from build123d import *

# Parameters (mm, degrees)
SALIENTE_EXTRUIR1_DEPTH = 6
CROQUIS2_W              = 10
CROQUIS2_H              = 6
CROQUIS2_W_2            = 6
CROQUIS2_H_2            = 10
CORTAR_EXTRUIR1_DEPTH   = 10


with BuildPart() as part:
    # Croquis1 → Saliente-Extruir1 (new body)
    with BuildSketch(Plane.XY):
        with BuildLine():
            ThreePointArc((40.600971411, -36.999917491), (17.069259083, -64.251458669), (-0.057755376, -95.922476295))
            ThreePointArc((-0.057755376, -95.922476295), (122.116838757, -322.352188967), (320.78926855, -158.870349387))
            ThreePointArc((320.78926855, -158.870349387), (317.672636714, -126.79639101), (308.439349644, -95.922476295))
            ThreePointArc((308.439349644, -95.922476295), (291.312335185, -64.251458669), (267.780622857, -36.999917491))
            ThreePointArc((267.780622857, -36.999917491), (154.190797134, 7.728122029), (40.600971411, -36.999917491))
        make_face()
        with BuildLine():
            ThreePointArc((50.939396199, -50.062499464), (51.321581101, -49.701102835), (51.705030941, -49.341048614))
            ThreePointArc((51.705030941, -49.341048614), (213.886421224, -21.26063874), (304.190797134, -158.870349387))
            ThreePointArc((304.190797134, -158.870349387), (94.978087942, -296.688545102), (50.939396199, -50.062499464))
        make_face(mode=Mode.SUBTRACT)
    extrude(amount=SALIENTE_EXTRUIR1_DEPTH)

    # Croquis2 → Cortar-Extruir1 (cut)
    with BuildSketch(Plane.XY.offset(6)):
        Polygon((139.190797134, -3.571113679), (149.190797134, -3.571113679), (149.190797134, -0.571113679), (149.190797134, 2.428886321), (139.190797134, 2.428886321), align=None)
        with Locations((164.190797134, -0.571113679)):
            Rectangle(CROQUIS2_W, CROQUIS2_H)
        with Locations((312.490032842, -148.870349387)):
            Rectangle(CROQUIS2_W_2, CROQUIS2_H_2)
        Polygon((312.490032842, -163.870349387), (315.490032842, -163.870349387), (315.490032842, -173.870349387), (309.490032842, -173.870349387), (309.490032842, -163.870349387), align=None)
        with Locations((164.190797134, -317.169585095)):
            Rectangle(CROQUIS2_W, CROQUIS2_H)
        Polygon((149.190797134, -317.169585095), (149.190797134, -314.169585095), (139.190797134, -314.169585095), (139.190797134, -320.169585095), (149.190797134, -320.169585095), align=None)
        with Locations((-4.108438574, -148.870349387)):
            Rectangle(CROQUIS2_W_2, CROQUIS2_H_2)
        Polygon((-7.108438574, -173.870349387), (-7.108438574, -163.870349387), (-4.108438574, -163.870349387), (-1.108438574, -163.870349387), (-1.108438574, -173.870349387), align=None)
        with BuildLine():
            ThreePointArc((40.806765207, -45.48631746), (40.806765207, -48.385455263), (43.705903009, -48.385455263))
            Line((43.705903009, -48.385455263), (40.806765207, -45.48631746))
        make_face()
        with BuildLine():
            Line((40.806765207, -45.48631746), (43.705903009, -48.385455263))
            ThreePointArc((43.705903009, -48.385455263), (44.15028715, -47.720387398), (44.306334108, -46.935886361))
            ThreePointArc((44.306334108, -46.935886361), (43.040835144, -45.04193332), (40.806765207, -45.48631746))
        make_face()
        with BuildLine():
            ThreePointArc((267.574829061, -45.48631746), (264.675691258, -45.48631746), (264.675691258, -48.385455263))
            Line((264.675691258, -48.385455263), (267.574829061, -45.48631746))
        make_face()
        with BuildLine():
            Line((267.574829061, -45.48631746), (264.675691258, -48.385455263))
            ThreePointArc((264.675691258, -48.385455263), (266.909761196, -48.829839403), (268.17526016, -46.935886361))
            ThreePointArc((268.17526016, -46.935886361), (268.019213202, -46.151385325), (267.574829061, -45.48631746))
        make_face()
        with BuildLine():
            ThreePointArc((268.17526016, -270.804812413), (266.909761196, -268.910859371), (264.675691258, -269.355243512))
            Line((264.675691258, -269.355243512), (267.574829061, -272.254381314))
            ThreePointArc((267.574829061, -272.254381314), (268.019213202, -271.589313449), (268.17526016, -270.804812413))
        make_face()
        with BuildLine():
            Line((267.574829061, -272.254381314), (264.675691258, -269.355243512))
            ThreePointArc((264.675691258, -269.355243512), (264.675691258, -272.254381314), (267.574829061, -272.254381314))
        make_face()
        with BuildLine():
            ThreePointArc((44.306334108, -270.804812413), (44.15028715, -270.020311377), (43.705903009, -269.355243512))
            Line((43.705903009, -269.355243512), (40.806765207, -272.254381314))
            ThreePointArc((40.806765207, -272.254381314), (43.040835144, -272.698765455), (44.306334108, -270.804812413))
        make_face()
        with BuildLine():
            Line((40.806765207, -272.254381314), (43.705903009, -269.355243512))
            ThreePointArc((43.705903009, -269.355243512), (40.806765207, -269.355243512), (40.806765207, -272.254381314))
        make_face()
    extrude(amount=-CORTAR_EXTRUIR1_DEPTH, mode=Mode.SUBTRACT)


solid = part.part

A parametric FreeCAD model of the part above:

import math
import FreeCAD as App
import Part
import Sketcher
from FreeCAD import Vector
Q = App.Units.Quantity

doc = App.newDocument("Part")
body = doc.addObject("PartDesign::Body", "Body")

sketch1 = body.newObject("Sketcher::SketchObject", "Sketch")
sketch1.AttachmentSupport = (doc.getObject("XY_Plane"), [""])
sketch1.MapMode = "FlatFace"
sketch1.addGeometry(Part.ArcOfCircle(Part.Circle(Vector(154.190797, -158.870349, 0), Vector(0, 0, 1), 166.598471), math.radians(132.985867), math.radians(157.799935)), False)
sketch1.addGeometry(Part.ArcOfCircle(Part.Circle(Vector(154.190797, -158.870349, 0), Vector(0, 0, 1), 166.598471), math.radians(157.799935), math.radians(360)), False)
sketch1.addGeometry(Part.ArcOfCircle(Part.Circle(Vector(154.190797, -158.870349, 0), Vector(0, 0, 1), 166.598471), math.radians(0), math.radians(22.200065)), False)
sketch1.addGeometry(Part.ArcOfCircle(Part.Circle(Vector(154.190797, -158.870349, 0), Vector(0, 0, 1), 166.598471), math.radians(22.200065), math.radians(47.014133)), False)
sketch1.addGeometry(Part.ArcOfCircle(Part.Circle(Vector(154.190797, -158.870349, 0), Vector(0, 0, 1), 166.598471), math.radians(47.014133), math.radians(132.985867)), False)
sketch1.addGeometry(Part.ArcOfCircle(Part.Circle(Vector(154.190797, -158.870349, 0), Vector(0, 0, 1), 150), math.radians(133.49906), math.radians(360)), False)
sketch1.addGeometry(Part.ArcOfCircle(Part.Circle(Vector(154.190787, -158.870338, 0), Vector(0, 0, 1), 149.999985), math.radians(133.097228), math.radians(133.49906)), False)
sketch1.addGeometry(Part.ArcOfCircle(Part.Circle(Vector(154.190797, -158.870349, 0), Vector(0, 0, 1), 150), math.radians(0), math.radians(133.097228)), False)
sketch1.addConstraint(Sketcher.Constraint("Coincident", 0, 2, 1, 1))
sketch1.addConstraint(Sketcher.Constraint("Coincident", 1, 2, 2, 1))
sketch1.addConstraint(Sketcher.Constraint("Coincident", 2, 2, 3, 1))
sketch1.addConstraint(Sketcher.Constraint("Coincident", 3, 2, 4, 1))
sketch1.addConstraint(Sketcher.Constraint("Coincident", 4, 2, 0, 1))
sketch1.addConstraint(Sketcher.Constraint("Coincident", 5, 1, 6, 2))
sketch1.addConstraint(Sketcher.Constraint("Coincident", 6, 1, 7, 2))
sketch1.addConstraint(Sketcher.Constraint("Coincident", 7, 1, 5, 2))
sketch1.addConstraint(Sketcher.Constraint("Coincident", 1, 3, 0, 3))
sketch1.addConstraint(Sketcher.Constraint("Coincident", 2, 3, 0, 3))
sketch1.addConstraint(Sketcher.Constraint("Coincident", 3, 3, 0, 3))
sketch1.addConstraint(Sketcher.Constraint("Coincident", 5, 3, 0, 3))
sketch1.addConstraint(Sketcher.Constraint("Coincident", 7, 3, 0, 3))
sketch1.addConstraint(Sketcher.Constraint("Radius", 5, Q("150 mm")))
sketch1.addConstraint(Sketcher.Constraint("Radius", 0, Q("166.598471 mm")))
sketch1.addConstraint(Sketcher.Constraint("Radius", 4, Q("166.598471 mm")))
sketch1.addConstraint(Sketcher.Constraint("Radius", 6, Q("149.999985 mm")))
sketch1.addConstraint(Sketcher.Constraint("DistanceY", 5, 1, -1, 1, Q("50.062499 mm")))
sketch1.addConstraint(Sketcher.Constraint("DistanceX", 5, 1, 3, 3, Q("103.251401 mm")))
sketch1.addConstraint(Sketcher.Constraint("DistanceY", 3, 3, 6, 1, Q("109.529301 mm")))
sketch1.addConstraint(Sketcher.Constraint("DistanceX", -1, 1, 1, 2, Q("320.789269 mm")))
sketch1.addConstraint(Sketcher.Constraint("DistanceY", 1, 2, -1, 1, Q("158.870349 mm")))
sketch1.addConstraint(Sketcher.Constraint("DistanceX", -1, 1, 2, 2, Q("308.43935 mm")))
sketch1.addConstraint(Sketcher.Constraint("DistanceX", -1, 1, 4, 2, Q("40.600971 mm")))
sketch1.addConstraint(Sketcher.Constraint("DistanceY", 7, 1, -1, 1, Q("158.870349 mm")))
sketch1.addConstraint(Sketcher.Constraint("DistanceY", 2, 2, 3, 2, Q("58.922559 mm")))
sketch1.addConstraint(Sketcher.Constraint("DistanceY", 0, 2, 4, 2, Q("58.922559 mm")))
pad1 = body.newObject("PartDesign::Pad", "Pad")
pad1.Profile = sketch1
pad1.Length = 6

sketch2 = body.newObject("Sketcher::SketchObject", "Sketch001")
sketch2.AttachmentSupport = (doc.getObject("XY_Plane"), [""])
sketch2.MapMode = "FlatFace"
sketch2.AttachmentOffset = App.Placement(Vector(0, 0, 6), App.Rotation())
sketch2.addGeometry(Part.LineSegment(Vector(139.2, -3.6, 0), Vector(149.2, -3.6, 0)), False)
sketch2.addGeometry(Part.LineSegment(Vector(149.2, -3.6, 0), Vector(149.2, 2.4, 0)), False)
sketch2.addGeometry(Part.LineSegment(Vector(149.2, 2.4, 0), Vector(139.2, 2.4, 0)), False)
sketch2.addGeometry(Part.LineSegment(Vector(139.2, 2.4, 0), Vector(139.2, -3.6, 0)), False)
sketch2.addGeometry(Part.LineSegment(Vector(159.2, 2.4, 0), Vector(159.2, -3.6, 0)), False)
sketch2.addGeometry(Part.LineSegment(Vector(159.2, -3.6, 0), Vector(169.2, -3.6, 0)), False)
sketch2.addGeometry(Part.LineSegment(Vector(169.2, -3.6, 0), Vector(169.2, 2.4, 0)), False)
sketch2.addGeometry(Part.LineSegment(Vector(169.2, 2.4, 0), Vector(159.2, 2.4, 0)), False)
sketch2.addGeometry(Part.LineSegment(Vector(309.5, -143.9, 0), Vector(309.5, -153.9, 0)), False)
sketch2.addGeometry(Part.LineSegment(Vector(309.5, -153.9, 0), Vector(315.5, -153.9, 0)), False)
sketch2.addGeometry(Part.LineSegment(Vector(315.5, -153.9, 0), Vector(315.5, -143.9, 0)), False)
sketch2.addGeometry(Part.LineSegment(Vector(315.5, -143.9, 0), Vector(309.5, -143.9, 0)), False)
sketch2.addGeometry(Part.LineSegment(Vector(315.5, -163.9, 0), Vector(309.5, -163.9, 0)), False)
sketch2.addGeometry(Part.LineSegment(Vector(309.5, -163.9, 0), Vector(309.5, -173.9, 0)), False)
sketch2.addGeometry(Part.LineSegment(Vector(309.5, -173.9, 0), Vector(315.5, -173.9, 0)), False)
sketch2.addGeometry(Part.LineSegment(Vector(315.5, -173.9, 0), Vector(315.5, -163.9, 0)), False)
sketch2.addGeometry(Part.LineSegment(Vector(159.2, -314.2, 0), Vector(159.2, -320.2, 0)), False)
sketch2.addGeometry(Part.LineSegment(Vector(159.2, -320.2, 0), Vector(169.2, -320.2, 0)), False)
sketch2.addGeometry(Part.LineSegment(Vector(169.2, -320.2, 0), Vector(169.2, -314.2, 0)), False)
sketch2.addGeometry(Part.LineSegment(Vector(169.2, -314.2, 0), Vector(159.2, -314.2, 0)), False)
sketch2.addGeometry(Part.LineSegment(Vector(149.2, -314.2, 0), Vector(139.2, -314.2, 0)), False)
sketch2.addGeometry(Part.LineSegment(Vector(139.2, -314.2, 0), Vector(139.2, -320.2, 0)), False)
sketch2.addGeometry(Part.LineSegment(Vector(139.2, -320.2, 0), Vector(149.2, -320.2, 0)), False)
sketch2.addGeometry(Part.LineSegment(Vector(149.2, -320.2, 0), Vector(149.2, -314.2, 0)), False)
sketch2.addGeometry(Part.LineSegment(Vector(-7.1, -143.9, 0), Vector(-7.1, -153.9, 0)), False)
sketch2.addGeometry(Part.LineSegment(Vector(-7.1, -153.9, 0), Vector(-1.1, -153.9, 0)), False)
sketch2.addGeometry(Part.LineSegment(Vector(-1.1, -153.9, 0), Vector(-1.1, -143.9, 0)), False)
sketch2.addGeometry(Part.LineSegment(Vector(-1.1, -143.9, 0), Vector(-7.1, -143.9, 0)), False)
sketch2.addGeometry(Part.LineSegment(Vector(-7.1, -163.9, 0), Vector(-7.1, -173.9, 0)), False)
sketch2.addGeometry(Part.LineSegment(Vector(-7.1, -173.9, 0), Vector(-1.1, -173.9, 0)), False)
sketch2.addGeometry(Part.LineSegment(Vector(-1.1, -173.9, 0), Vector(-1.1, -163.9, 0)), False)
sketch2.addGeometry(Part.LineSegment(Vector(-1.1, -163.9, 0), Vector(-7.1, -163.9, 0)), False)
sketch2.addGeometry(Part.ArcOfCircle(Part.Circle(Vector(42.3, -46.9, 0), Vector(0, 0, 1), 2), math.radians(135), math.radians(315)), False)
sketch2.addGeometry(Part.ArcOfCircle(Part.Circle(Vector(42.3, -46.9, 0), Vector(0, 0, 1), 2), math.radians(-45), math.radians(0)), False)
sketch2.addGeometry(Part.ArcOfCircle(Part.Circle(Vector(42.3, -46.9, 0), Vector(0, 0, 1), 2), math.radians(0), math.radians(135)), False)
sketch2.addGeometry(Part.ArcOfCircle(Part.Circle(Vector(266.1, -46.9, 0), Vector(0, 0, 1), 2), math.radians(45), math.radians(225)), False)
sketch2.addGeometry(Part.ArcOfCircle(Part.Circle(Vector(266.1, -46.9, 0), Vector(0, 0, 1), 2.1), math.radians(-135), math.radians(0)), False)
sketch2.addGeometry(Part.ArcOfCircle(Part.Circle(Vector(266.1, -46.9, 0), Vector(0, 0, 1), 2), math.radians(0), math.radians(45)), False)
sketch2.addGeometry(Part.ArcOfCircle(Part.Circle(Vector(266.1, -270.8, 0), Vector(0, 0, 1), 2), math.radians(0), math.radians(135)), False)
sketch2.addGeometry(Part.ArcOfCircle(Part.Circle(Vector(266.1, -270.8, 0), Vector(0, 0, 1), 2), math.radians(135), math.radians(315)), False)
sketch2.addGeometry(Part.ArcOfCircle(Part.Circle(Vector(266.1, -270.8, 0), Vector(0, 0, 1), 2), math.radians(-45), math.radians(0)), False)
sketch2.addGeometry(Part.ArcOfCircle(Part.Circle(Vector(42.3, -270.8, 0), Vector(0, 0, 1), 2), math.radians(0), math.radians(45)), False)
sketch2.addGeometry(Part.ArcOfCircle(Part.Circle(Vector(42.3, -270.8, 0), Vector(0, 0, 1), 2), math.radians(45), math.radians(225)), False)
sketch2.addGeometry(Part.ArcOfCircle(Part.Circle(Vector(42.3, -270.8, 0), Vector(0, 0, 1), 2), math.radians(-135), math.radians(0)), False)
sketch2.addConstraint(Sketcher.Constraint("Coincident", 0, 2, 1, 1))
sketch2.addConstraint(Sketcher.Constraint("Coincident", 1, 2, 2, 1))
sketch2.addConstraint(Sketcher.Constraint("Coincident", 2, 2, 3, 1))
sketch2.addConstraint(Sketcher.Constraint("Coincident", 3, 2, 0, 1))
sketch2.addConstraint(Sketcher.Constraint("Coincident", 4, 2, 5, 1))
sketch2.addConstraint(Sketcher.Constraint("Coincident", 5, 2, 6, 1))
sketch2.addConstraint(Sketcher.Constraint("Coincident", 6, 2, 7, 1))
sketch2.addConstraint(Sketcher.Constraint("Coincident", 7, 2, 4, 1))
sketch2.addConstraint(Sketcher.Constraint("Coincident", 8, 2, 9, 1))
sketch2.addConstraint(Sketcher.Constraint("Coincident", 9, 2, 10, 1))
sketch2.addConstraint(Sketcher.Constraint("Coincident", 10, 2, 11, 1))
sketch2.addConstraint(Sketcher.Constraint("Coincident", 11, 2, 8, 1))
sketch2.addConstraint(Sketcher.Constraint("Coincident", 12, 2, 13, 1))
sketch2.addConstraint(Sketcher.Constraint("Coincident", 13, 2, 14, 1))
sketch2.addConstraint(Sketcher.Constraint("Coincident", 14, 2, 15, 1))
sketch2.addConstraint(Sketcher.Constraint("Coincident", 15, 2, 12, 1))
sketch2.addConstraint(Sketcher.Constraint("Coincident", 16, 2, 17, 1))
sketch2.addConstraint(Sketcher.Constraint("Coincident", 17, 2, 18, 1))
sketch2.addConstraint(Sketcher.Constraint("Coincident", 18, 2, 19, 1))
sketch2.addConstraint(Sketcher.Constraint("Coincident", 19, 2, 16, 1))
sketch2.addConstraint(Sketcher.Constraint("Coincident", 20, 2, 21, 1))
sketch2.addConstraint(Sketcher.Constraint("Coincident", 21, 2, 22, 1))
sketch2.addConstraint(Sketcher.Constraint("Coincident", 22, 2, 23, 1))
sketch2.addConstraint(Sketcher.Constraint("Coincident", 23, 2, 20, 1))
sketch2.addConstraint(Sketcher.Constraint("Coincident", 24, 2, 25, 1))
sketch2.addConstraint(Sketcher.Constraint("Coincident", 25, 2, 26, 1))
sketch2.addConstraint(Sketcher.Constraint("Coincident", 26, 2, 27, 1))
sketch2.addConstraint(Sketcher.Constraint("Coincident", 27, 2, 24, 1))
sketch2.addConstraint(Sketcher.Constraint("Coincident", 28, 2, 29, 1))
sketch2.addConstraint(Sketcher.Constraint("Coincident", 29, 2, 30, 1))
sketch2.addConstraint(Sketcher.Constraint("Coincident", 30, 2, 31, 1))
sketch2.addConstraint(Sketcher.Constraint("Coincident", 31, 2, 28, 1))
sketch2.addConstraint(Sketcher.Constraint("Tangent", 32, 2, 33, 1))
sketch2.addConstraint(Sketcher.Constraint("Tangent", 33, 2, 34, 1))
sketch2.addConstraint(Sketcher.Constraint("Tangent", 34, 2, 32, 1))
sketch2.addConstraint(Sketcher.Constraint("Tangent", 35, 2, 36, 1))
sketch2.addConstraint(Sketcher.Constraint("Tangent", 36, 2, 37, 1))
sketch2.addConstraint(Sketcher.Constraint("Tangent", 37, 2, 35, 1))
sketch2.addConstraint(Sketcher.Constraint("Tangent", 38, 2, 39, 1))
sketch2.addConstraint(Sketcher.Constraint("Tangent", 39, 2, 40, 1))
sketch2.addConstraint(Sketcher.Constraint("Tangent", 40, 2, 38, 1))
sketch2.addConstraint(Sketcher.Constraint("Tangent", 41, 2, 42, 1))
sketch2.addConstraint(Sketcher.Constraint("Tangent", 42, 2, 43, 1))
sketch2.addConstraint(Sketcher.Constraint("Tangent", 43, 2, 41, 1))
sketch2.addConstraint(Sketcher.Constraint("Horizontal", 0))
sketch2.addConstraint(Sketcher.Constraint("Vertical", 1))
sketch2.addConstraint(Sketcher.Constraint("Horizontal", 2))
sketch2.addConstraint(Sketcher.Constraint("Vertical", 3))
sketch2.addConstraint(Sketcher.Constraint("Vertical", 4))
sketch2.addConstraint(Sketcher.Constraint("Horizontal", 5))
sketch2.addConstraint(Sketcher.Constraint("Vertical", 6))
sketch2.addConstraint(Sketcher.Constraint("Horizontal", 7))
sketch2.addConstraint(Sketcher.Constraint("Vertical", 8))
sketch2.addConstraint(Sketcher.Constraint("Horizontal", 9))
sketch2.addConstraint(Sketcher.Constraint("Vertical", 10))
sketch2.addConstraint(Sketcher.Constraint("Horizontal", 11))
sketch2.addConstraint(Sketcher.Constraint("Horizontal", 12))
sketch2.addConstraint(Sketcher.Constraint("Vertical", 13))
sketch2.addConstraint(Sketcher.Constraint("Horizontal", 14))
sketch2.addConstraint(Sketcher.Constraint("Vertical", 15))
sketch2.addConstraint(Sketcher.Constraint("Vertical", 16))
sketch2.addConstraint(Sketcher.Constraint("Horizontal", 17))
sketch2.addConstraint(Sketcher.Constraint("Vertical", 18))
sketch2.addConstraint(Sketcher.Constraint("Horizontal", 19))
sketch2.addConstraint(Sketcher.Constraint("Horizontal", 20))
sketch2.addConstraint(Sketcher.Constraint("Vertical", 21))
sketch2.addConstraint(Sketcher.Constraint("Horizontal", 22))
sketch2.addConstraint(Sketcher.Constraint("Vertical", 23))
sketch2.addConstraint(Sketcher.Constraint("Vertical", 24))
sketch2.addConstraint(Sketcher.Constraint("Horizontal", 25))
sketch2.addConstraint(Sketcher.Constraint("Vertical", 26))
sketch2.addConstraint(Sketcher.Constraint("Horizontal", 27))
sketch2.addConstraint(Sketcher.Constraint("Vertical", 28))
sketch2.addConstraint(Sketcher.Constraint("Horizontal", 29))
sketch2.addConstraint(Sketcher.Constraint("Vertical", 30))
sketch2.addConstraint(Sketcher.Constraint("Horizontal", 31))
sketch2.addConstraint(Sketcher.Constraint("Equal", 34, 35))
sketch2.addConstraint(Sketcher.Constraint("Equal", 37, 38))
sketch2.addConstraint(Sketcher.Constraint("Equal", 40, 41))
sketch2.addConstraint(Sketcher.Constraint("Horizontal", 34, 3, 35, 3))
sketch2.addConstraint(Sketcher.Constraint("Horizontal", 40, 3, 41, 3))
sketch2.addConstraint(Sketcher.Constraint("Horizontal", 3, 2, 4, 2))
sketch2.addConstraint(Sketcher.Constraint("Horizontal", 2, 2, 6, 2))
sketch2.addConstraint(Sketcher.Constraint("Horizontal", 19, 2, 20, 2))
sketch2.addConstraint(Sketcher.Constraint("Horizontal", 17, 2, 21, 2))
sketch2.addConstraint(Sketcher.Constraint("Horizontal", 9, 2, 24, 2))
sketch2.addConstraint(Sketcher.Constraint("Horizontal", 11, 2, 26, 2))
sketch2.addConstraint(Sketcher.Constraint("Horizontal", 14, 2, 28, 2))
sketch2.addConstraint(Sketcher.Constraint("Horizontal", 15, 2, 30, 2))
sketch2.addConstraint(Sketcher.Constraint("Horizontal", 37, 3, 33, 2))
sketch2.addConstraint(Sketcher.Constraint("Horizontal", 32, 2, 35, 2))
sketch2.addConstraint(Sketcher.Constraint("Horizontal", 33, 2, 36, 2))
sketch2.addConstraint(Sketcher.Constraint("Horizontal", 34, 2, 37, 2))
sketch2.addConstraint(Sketcher.Constraint("Horizontal", 43, 3, 40, 2))
sketch2.addConstraint(Sketcher.Constraint("Horizontal", 38, 2, 41, 2))
sketch2.addConstraint(Sketcher.Constraint("Horizontal", 39, 2, 42, 2))
sketch2.addConstraint(Sketcher.Constraint("Horizontal", 40, 2, 43, 2))
sketch2.addConstraint(Sketcher.Constraint("Vertical", 37, 3, 38, 3))
sketch2.addConstraint(Sketcher.Constraint("Vertical", 34, 3, 41, 3))
sketch2.addConstraint(Sketcher.Constraint("Vertical", 11, 2, 12, 2))
sketch2.addConstraint(Sketcher.Constraint("Vertical", 10, 2, 14, 2))
sketch2.addConstraint(Sketcher.Constraint("Vertical", 7, 2, 16, 2))
sketch2.addConstraint(Sketcher.Constraint("Vertical", 6, 2, 17, 2))
sketch2.addConstraint(Sketcher.Constraint("Vertical", 3, 2, 20, 2))
sketch2.addConstraint(Sketcher.Constraint("Vertical", 1, 2, 22, 2))
sketch2.addConstraint(Sketcher.Constraint("Vertical", 27, 2, 28, 2))
sketch2.addConstraint(Sketcher.Constraint("Vertical", 26, 2, 29, 2))
sketch2.addConstraint(Sketcher.Constraint("Vertical", 35, 2, 38, 2))
sketch2.addConstraint(Sketcher.Constraint("Vertical", 37, 2, 39, 2))
sketch2.addConstraint(Sketcher.Constraint("Equal", 2, 5))
sketch2.addConstraint(Sketcher.Constraint("Equal", 14, 25))
sketch2.addConstraint(Sketcher.Constraint("Equal", 31, 1))
sketch2.addConstraint(Sketcher.Constraint("Equal", 22, 8))
sketch2.addConstraint(Sketcher.Constraint("Equal", 10, 13))
sketch2.addConstraint(Sketcher.Constraint("Equal", 6, 16))
sketch2.addConstraint(Sketcher.Constraint("DistanceX", 0, 1, 0, 2, Q("10 mm")))
sketch2.addConstraint(Sketcher.Constraint("DistanceX", 9, 1, 9, 2, Q("6 mm")))
sketch2.addConstraint(Sketcher.Constraint("Radius", 32, Q("2.05 mm")))
sketch2.addConstraint(Sketcher.Constraint("DistanceX", 0, 2, 4, 2, Q("10 mm")))
sketch2.addConstraint(Sketcher.Constraint("DistanceY", 12, 2, 8, 2, Q("10 mm")))
sketch2.addConstraint(Sketcher.Constraint("DistanceX", -1, 1, 35, 3, Q("266.12526 mm")))
sketch2.addConstraint(Sketcher.Constraint("DistanceY", 8, 2, -1, 1, Q("153.870349 mm")))
sketch2.addConstraint(Sketcher.Constraint("DistanceX", 24, 2, -1, 1, Q("7.108439 mm")))
sketch2.addConstraint(Sketcher.Constraint("DistanceX", -1, 1, 35, 2, Q("264.675691 mm")))
sketch2.addConstraint(Sketcher.Constraint("DistanceX", -1, 1, 37, 2, Q("267.574829 mm")))
sketch2.addConstraint(Sketcher.Constraint("DistanceY", 39, 2, -1, 1, Q("272.254381 mm")))
sketch2.addConstraint(Sketcher.Constraint("DistanceX", 26, 2, 32, 2, Q("44.814342 mm")))
sketch2.addConstraint(Sketcher.Constraint("DistanceY", 32, 2, 3, 2, Q("44.814342 mm")))
sketch2.addConstraint(Sketcher.Constraint("DistanceX", 35, 2, 11, 2, Q("44.814342 mm")))
sketch2.addConstraint(Sketcher.Constraint("DistanceY", 18, 2, 38, 2, Q("44.814342 mm")))
sketch2.addConstraint(Sketcher.Constraint("DistanceX", 42, 2, 20, 2, Q("98.384032 mm")))
sketch2.addConstraint(Sketcher.Constraint("DistanceY", 32, 3, -1, 1, Q("46.935886 mm")))
pocket1 = body.newObject("PartDesign::Pocket", "Pocket")
pocket1.Profile = sketch2
pocket1.Length = 10

doc.recompute()
